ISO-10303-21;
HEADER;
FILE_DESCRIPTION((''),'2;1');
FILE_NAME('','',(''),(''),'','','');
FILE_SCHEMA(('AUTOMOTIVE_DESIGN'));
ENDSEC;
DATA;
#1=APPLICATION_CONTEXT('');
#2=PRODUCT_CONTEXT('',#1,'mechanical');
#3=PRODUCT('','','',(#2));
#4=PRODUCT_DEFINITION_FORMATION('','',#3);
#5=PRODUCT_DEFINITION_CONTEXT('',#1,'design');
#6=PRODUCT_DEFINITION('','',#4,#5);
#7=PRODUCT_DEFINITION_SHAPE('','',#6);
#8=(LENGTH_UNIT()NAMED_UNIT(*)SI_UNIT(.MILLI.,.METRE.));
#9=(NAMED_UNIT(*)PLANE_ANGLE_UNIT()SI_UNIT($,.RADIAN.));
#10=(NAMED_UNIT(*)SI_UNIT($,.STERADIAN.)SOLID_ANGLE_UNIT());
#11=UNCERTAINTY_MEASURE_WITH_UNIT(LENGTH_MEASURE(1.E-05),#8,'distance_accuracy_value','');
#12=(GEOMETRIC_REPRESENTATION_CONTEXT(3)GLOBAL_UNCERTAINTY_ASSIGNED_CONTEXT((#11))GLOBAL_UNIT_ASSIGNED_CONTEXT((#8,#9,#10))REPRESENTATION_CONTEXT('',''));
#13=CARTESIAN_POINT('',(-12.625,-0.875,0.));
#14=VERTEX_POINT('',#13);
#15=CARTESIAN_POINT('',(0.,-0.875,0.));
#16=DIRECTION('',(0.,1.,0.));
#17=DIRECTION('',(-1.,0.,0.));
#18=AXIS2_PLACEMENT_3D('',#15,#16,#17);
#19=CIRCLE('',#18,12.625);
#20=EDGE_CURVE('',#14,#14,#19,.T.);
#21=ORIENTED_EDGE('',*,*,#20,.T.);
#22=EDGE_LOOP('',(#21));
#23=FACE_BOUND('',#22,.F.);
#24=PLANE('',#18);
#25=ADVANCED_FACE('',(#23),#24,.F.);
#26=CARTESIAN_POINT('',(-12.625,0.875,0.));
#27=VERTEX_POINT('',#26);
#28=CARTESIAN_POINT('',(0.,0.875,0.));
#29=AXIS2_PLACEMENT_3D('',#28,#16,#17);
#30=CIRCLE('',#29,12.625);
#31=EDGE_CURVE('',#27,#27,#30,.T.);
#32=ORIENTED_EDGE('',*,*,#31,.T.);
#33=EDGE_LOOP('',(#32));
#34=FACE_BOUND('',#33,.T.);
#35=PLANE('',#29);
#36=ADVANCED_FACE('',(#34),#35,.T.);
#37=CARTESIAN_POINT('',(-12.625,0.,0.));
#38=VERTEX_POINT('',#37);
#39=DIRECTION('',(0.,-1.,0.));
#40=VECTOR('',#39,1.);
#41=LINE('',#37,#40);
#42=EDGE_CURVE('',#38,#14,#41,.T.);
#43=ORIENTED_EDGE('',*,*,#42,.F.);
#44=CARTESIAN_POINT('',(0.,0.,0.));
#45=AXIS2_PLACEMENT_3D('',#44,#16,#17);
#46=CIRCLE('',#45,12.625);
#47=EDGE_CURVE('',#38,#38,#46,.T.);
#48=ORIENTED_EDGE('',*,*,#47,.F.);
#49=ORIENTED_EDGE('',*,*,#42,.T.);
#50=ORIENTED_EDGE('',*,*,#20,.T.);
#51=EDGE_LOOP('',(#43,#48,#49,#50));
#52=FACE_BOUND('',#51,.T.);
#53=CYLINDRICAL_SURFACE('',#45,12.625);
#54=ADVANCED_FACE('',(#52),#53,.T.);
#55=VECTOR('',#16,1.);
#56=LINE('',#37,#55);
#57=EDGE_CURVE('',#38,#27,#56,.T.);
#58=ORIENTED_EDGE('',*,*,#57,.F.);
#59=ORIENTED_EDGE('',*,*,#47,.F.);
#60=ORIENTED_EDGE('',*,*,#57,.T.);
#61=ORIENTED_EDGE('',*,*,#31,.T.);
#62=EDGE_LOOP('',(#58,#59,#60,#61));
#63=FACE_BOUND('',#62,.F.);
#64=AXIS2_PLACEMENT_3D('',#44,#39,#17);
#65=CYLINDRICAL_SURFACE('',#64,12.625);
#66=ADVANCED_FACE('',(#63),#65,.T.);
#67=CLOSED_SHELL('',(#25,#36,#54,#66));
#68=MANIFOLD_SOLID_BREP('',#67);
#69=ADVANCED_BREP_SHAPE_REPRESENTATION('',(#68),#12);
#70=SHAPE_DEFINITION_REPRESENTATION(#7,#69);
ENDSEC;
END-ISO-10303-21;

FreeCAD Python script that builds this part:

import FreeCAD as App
import Part
import Sketcher
Q = App.Units.Quantity

doc = App.newDocument("Part")
body = doc.addObject("PartDesign::Body", "Body")

sketch1 = body.newObject("Sketcher::SketchObject", "Sketch")
sketch1.AttachmentSupport = (doc.getObject("XZ_Plane"), [""])
sketch1.MapMode = "FlatFace"
sketch1.addGeometry(Part.Circle(App.Vector(0, 0, 0), App.Vector(0, 0, 1), 13), False)
sketch1.addConstraint(Sketcher.Constraint("Coincident", 0, 3, -1, 1))
sketch1.addConstraint(Sketcher.Constraint("Diameter", 0, Q("25.25 mm")))
pad1 = body.newObject("PartDesign::Pad", "Pad")
pad1.Profile = sketch1
pad1.Length = 1.75
pad1.Midplane = True

doc.recompute()
